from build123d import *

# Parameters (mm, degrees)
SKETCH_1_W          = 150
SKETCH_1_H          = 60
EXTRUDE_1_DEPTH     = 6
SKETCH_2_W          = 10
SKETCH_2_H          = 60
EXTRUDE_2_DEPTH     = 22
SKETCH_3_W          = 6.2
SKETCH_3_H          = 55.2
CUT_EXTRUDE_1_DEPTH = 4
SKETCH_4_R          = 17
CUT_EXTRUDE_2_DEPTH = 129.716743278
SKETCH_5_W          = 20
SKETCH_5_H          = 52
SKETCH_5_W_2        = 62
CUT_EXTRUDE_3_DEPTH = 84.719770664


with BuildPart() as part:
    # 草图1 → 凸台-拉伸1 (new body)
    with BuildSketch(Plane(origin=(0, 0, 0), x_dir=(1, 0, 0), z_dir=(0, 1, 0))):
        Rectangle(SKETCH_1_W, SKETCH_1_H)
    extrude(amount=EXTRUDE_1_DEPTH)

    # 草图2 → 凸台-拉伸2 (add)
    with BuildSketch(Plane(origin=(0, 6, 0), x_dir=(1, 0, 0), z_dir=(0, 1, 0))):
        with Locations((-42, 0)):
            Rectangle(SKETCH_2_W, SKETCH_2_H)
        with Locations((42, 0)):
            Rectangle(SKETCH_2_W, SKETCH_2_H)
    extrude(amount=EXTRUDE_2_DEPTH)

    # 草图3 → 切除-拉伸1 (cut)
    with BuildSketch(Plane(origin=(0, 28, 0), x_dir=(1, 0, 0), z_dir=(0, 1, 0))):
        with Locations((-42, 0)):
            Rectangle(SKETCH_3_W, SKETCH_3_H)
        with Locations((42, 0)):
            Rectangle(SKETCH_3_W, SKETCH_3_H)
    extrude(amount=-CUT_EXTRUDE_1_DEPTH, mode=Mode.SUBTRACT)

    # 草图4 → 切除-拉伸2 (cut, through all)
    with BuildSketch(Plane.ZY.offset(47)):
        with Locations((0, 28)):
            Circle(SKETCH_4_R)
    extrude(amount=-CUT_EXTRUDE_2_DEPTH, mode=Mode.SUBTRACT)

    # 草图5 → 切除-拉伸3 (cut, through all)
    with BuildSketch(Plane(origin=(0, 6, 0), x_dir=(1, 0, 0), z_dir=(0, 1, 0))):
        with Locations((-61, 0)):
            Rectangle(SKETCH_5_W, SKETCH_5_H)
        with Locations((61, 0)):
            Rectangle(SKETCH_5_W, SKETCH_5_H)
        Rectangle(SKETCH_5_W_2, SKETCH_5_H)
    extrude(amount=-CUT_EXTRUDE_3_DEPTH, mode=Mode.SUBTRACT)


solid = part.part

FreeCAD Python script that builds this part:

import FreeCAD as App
import Part
import Sketcher

V = App.Vector
Q = App.Units.Quantity


def add_polygon(sketch, points):
    """Adds a closed chain of lines whose ends are joined by coincident constraints."""
    first, n = sketch.GeometryCount, len(points)
    for a, b in zip(points, points[1:] + points[:1]):
        sketch.addGeometry(Part.LineSegment(App.Vector(*a, 0), App.Vector(*b, 0)), False)
    for i in range(n):
        sketch.addConstraint(Sketcher.Constraint("Coincident", first + i, 2, first + (i + 1) % n, 1))

doc = App.newDocument("Part")
body = doc.addObject("PartDesign::Body", "Body")

# Sketch on XZ plane
sketch1 = doc.addObject("Sketcher::SketchObject", "Sketch")
body.addObject(sketch1)
sketch1.AttachmentSupport = (doc.XZ_Plane, [""])
sketch1.MapMode = "FlatFace"
add_polygon(sketch1, [(-75, -30), (-75, 30), (75, 30), (75, -30)])  # lines 0-3
sketch1.addConstraint(Sketcher.Constraint("Vertical", 0))
sketch1.addConstraint(Sketcher.Constraint("Horizontal", 1))
sketch1.addConstraint(Sketcher.Constraint("Vertical", 2))
sketch1.addConstraint(Sketcher.Constraint("Horizontal", 3))
sketch1.addConstraint(Sketcher.Constraint("Symmetric", 0, 2, 2, 2, -1, 1))
sketch1.addConstraint(Sketcher.Constraint("DistanceX", 1, 1, 1, 2, Q("150 mm")))
sketch1.addConstraint(Sketcher.Constraint("DistanceY", 0, 1, 0, 2, Q("60 mm")))
pad1 = doc.addObject("PartDesign::Pad", "Pad")
body.addObject(pad1)
pad1.Profile = sketch1
pad1.Length = 6
pad1.Reversed = True

# Sketch on XZ plane
sketch2 = doc.addObject("Sketcher::SketchObject", "Sketch001")
body.addObject(sketch2)
sketch2.AttachmentSupport = (doc.XZ_Plane, [""])
sketch2.MapMode = "FlatFace"
sketch2.AttachmentOffset = App.Placement(V(0, 0, -6), App.Rotation())
add_polygon(sketch2, [(-47, -30), (-47, 30), (-37, 30), (-37, -30)])  # lines 0-3
add_polygon(sketch2, [(37, -30), (37, 30), (47, 30), (47, -30)])  # lines 4-7
sketch2.addConstraint(Sketcher.Constraint("Vertical", 0))
sketch2.addConstraint(Sketcher.Constraint("Horizontal", 1))
sketch2.addConstraint(Sketcher.Constraint("Vertical", 2))
sketch2.addConstraint(Sketcher.Constraint("Horizontal", 3))
sketch2.addConstraint(Sketcher.Constraint("Vertical", 4))
sketch2.addConstraint(Sketcher.Constraint("Horizontal", 5))
sketch2.addConstraint(Sketcher.Constraint("Vertical", 6))
sketch2.addConstraint(Sketcher.Constraint("Horizontal", 7))
sketch2.addConstraint(Sketcher.Constraint("Symmetric", 2, 2, 4, 2, -1, 1))
sketch2.addConstraint(Sketcher.Constraint("Symmetric", 0, 2, 6, 2, -1, 1))
sketch2.addConstraint(Sketcher.Constraint("Horizontal", 1, 2, 4, 2))
sketch2.addConstraint(Sketcher.Constraint("DistanceX", 1, 1, 1, 2, Q("10 mm")))
sketch2.addConstraint(Sketcher.Constraint("DistanceY", 0, 1, 0, 2, Q("60 mm")))
sketch2.addConstraint(Sketcher.Constraint("DistanceX", 0, 2, -1, 1, Q("47 mm")))
pad2 = doc.addObject("PartDesign::Pad", "Pad001")
body.addObject(pad2)
pad2.Profile = sketch2
pad2.Length = 22
pad2.Reversed = True

# Sketch on XZ plane
sketch3 = doc.addObject("Sketcher::SketchObject", "Sketch002")
body.addObject(sketch3)
sketch3.AttachmentSupport = (doc.XZ_Plane, [""])
sketch3.MapMode = "FlatFace"
sketch3.AttachmentOffset = App.Placement(V(0, 0, -28), App.Rotation())
add_polygon(sketch3, [(-45, -28), (-45, 28), (-39, 28), (-39, -28)])  # lines 0-3
add_polygon(sketch3, [(39, -28), (39, 28), (45, 28), (45, -28)])  # lines 4-7
sketch3.addConstraint(Sketcher.Constraint("Vertical", 0))
sketch3.addConstraint(Sketcher.Constraint("Horizontal", 1))
sketch3.addConstraint(Sketcher.Constraint("Vertical", 2))
sketch3.addConstraint(Sketcher.Constraint("Horizontal", 3))
sketch3.addConstraint(Sketcher.Constraint("Vertical", 4))
sketch3.addConstraint(Sketcher.Constraint("Horizontal", 5))
sketch3.addConstraint(Sketcher.Constraint("Vertical", 6))
sketch3.addConstraint(Sketcher.Constraint("Horizontal", 7))
sketch3.addConstraint(Sketcher.Constraint("Symmetric", 2, 2, 4, 2, -1, 1))
sketch3.addConstraint(Sketcher.Constraint("Symmetric", 0, 2, 6, 2, -1, 1))
sketch3.addConstraint(Sketcher.Constraint("Horizontal", 1, 2, 4, 2))
sketch3.addConstraint(Sketcher.Constraint("DistanceX", 1, 1, 1, 2, Q("6.2 mm")))
sketch3.addConstraint(Sketcher.Constraint("DistanceY", 0, 1, 0, 2, Q("55.2 mm")))
sketch3.addConstraint(Sketcher.Constraint("DistanceX", 0, 2, 4, 2, Q("84 mm")))
pocket1 = doc.addObject("PartDesign::Pocket", "Pocket")
body.addObject(pocket1)
pocket1.Profile = sketch3
pocket1.Length = 4
pocket1.Reversed = True

# Sketch on YZ plane
sketch4 = doc.addObject("Sketcher::SketchObject", "Sketch003")
body.addObject(sketch4)
sketch4.AttachmentSupport = (doc.YZ_Plane, [""])
sketch4.MapMode = "FlatFace"
sketch4.AttachmentOffset = App.Placement(V(0, 0, -47), App.Rotation())
sketch4.addGeometry(Part.Circle(V(28, 0, 0), V(0, 0, 1), 17), False)
sketch4.addConstraint(Sketcher.Constraint("PointOnObject", 0, 3, -1))
sketch4.addConstraint(Sketcher.Constraint("Diameter", 0, Q("34 mm")))
sketch4.addConstraint(Sketcher.Constraint("DistanceX", -1, 1, 0, 3, Q("28 mm")))
pocket2 = doc.addObject("PartDesign::Pocket", "Pocket001")
body.addObject(pocket2)
pocket2.Profile = sketch4
pocket2.Type = "ThroughAll"
pocket2.Reversed = True

# Sketch on XZ plane
sketch5 = doc.addObject("Sketcher::SketchObject", "Sketch004")
body.addObject(sketch5)
sketch5.AttachmentSupport = (doc.XZ_Plane, [""])
sketch5.MapMode = "FlatFace"
sketch5.AttachmentOffset = App.Placement(V(0, 0, -6), App.Rotation())
add_polygon(sketch5, [(-71, -26), (-71, 26), (-51, 26), (-51, -26)])  # lines 0-3
add_polygon(sketch5, [(51, -26), (51, 26), (71, 26), (71, -26)])  # lines 4-7
add_polygon(sketch5, [(-31, -26), (-31, 26), (31, 26), (31, -26)])  # lines 8-11
sketch5.addConstraint(Sketcher.Constraint("Vertical", 0))
sketch5.addConstraint(Sketcher.Constraint("Horizontal", 1))
sketch5.addConstraint(Sketcher.Constraint("Vertical", 2))
sketch5.addConstraint(Sketcher.Constraint("Horizontal", 3))
sketch5.addConstraint(Sketcher.Constraint("Vertical", 4))
sketch5.addConstraint(Sketcher.Constraint("Horizontal", 5))
sketch5.addConstraint(Sketcher.Constraint("Vertical", 6))
sketch5.addConstraint(Sketcher.Constraint("Horizontal", 7))
sketch5.addConstraint(Sketcher.Constraint("Vertical", 8))
sketch5.addConstraint(Sketcher.Constraint("Horizontal", 9))
sketch5.addConstraint(Sketcher.Constraint("Vertical", 10))
sketch5.addConstraint(Sketcher.Constraint("Horizontal", 11))
sketch5.addConstraint(Sketcher.Constraint("Symmetric", 2, 2, 4, 2, -1, 1))
sketch5.addConstraint(Sketcher.Constraint("Symmetric", 0, 2, 6, 2, -1, 1))
sketch5.addConstraint(Sketcher.Constraint("Symmetric", 8, 2, 10, 2, -1, 1))
sketch5.addConstraint(Sketcher.Constraint("Horizontal", 1, 2, 4, 2))
sketch5.addConstraint(Sketcher.Constraint("Horizontal", 5, 2, 8, 2))
sketch5.addConstraint(Sketcher.Constraint("DistanceX", 1, 1, 1, 2, Q("20 mm")))
sketch5.addConstraint(Sketcher.Constraint("DistanceX", 9, 1, 9, 2, Q("62 mm")))
sketch5.addConstraint(Sketcher.Constraint("DistanceY", 0, 1, 0, 2, Q("52 mm")))
sketch5.addConstraint(Sketcher.Constraint("DistanceX", 0, 2, -1, 1, Q("71 mm")))
pocket3 = doc.addObject("PartDesign::Pocket", "Pocket002")
body.addObject(pocket3)
pocket3.Profile = sketch5
pocket3.Type = "ThroughAll"
pocket3.Reversed = True

doc.recompute()
